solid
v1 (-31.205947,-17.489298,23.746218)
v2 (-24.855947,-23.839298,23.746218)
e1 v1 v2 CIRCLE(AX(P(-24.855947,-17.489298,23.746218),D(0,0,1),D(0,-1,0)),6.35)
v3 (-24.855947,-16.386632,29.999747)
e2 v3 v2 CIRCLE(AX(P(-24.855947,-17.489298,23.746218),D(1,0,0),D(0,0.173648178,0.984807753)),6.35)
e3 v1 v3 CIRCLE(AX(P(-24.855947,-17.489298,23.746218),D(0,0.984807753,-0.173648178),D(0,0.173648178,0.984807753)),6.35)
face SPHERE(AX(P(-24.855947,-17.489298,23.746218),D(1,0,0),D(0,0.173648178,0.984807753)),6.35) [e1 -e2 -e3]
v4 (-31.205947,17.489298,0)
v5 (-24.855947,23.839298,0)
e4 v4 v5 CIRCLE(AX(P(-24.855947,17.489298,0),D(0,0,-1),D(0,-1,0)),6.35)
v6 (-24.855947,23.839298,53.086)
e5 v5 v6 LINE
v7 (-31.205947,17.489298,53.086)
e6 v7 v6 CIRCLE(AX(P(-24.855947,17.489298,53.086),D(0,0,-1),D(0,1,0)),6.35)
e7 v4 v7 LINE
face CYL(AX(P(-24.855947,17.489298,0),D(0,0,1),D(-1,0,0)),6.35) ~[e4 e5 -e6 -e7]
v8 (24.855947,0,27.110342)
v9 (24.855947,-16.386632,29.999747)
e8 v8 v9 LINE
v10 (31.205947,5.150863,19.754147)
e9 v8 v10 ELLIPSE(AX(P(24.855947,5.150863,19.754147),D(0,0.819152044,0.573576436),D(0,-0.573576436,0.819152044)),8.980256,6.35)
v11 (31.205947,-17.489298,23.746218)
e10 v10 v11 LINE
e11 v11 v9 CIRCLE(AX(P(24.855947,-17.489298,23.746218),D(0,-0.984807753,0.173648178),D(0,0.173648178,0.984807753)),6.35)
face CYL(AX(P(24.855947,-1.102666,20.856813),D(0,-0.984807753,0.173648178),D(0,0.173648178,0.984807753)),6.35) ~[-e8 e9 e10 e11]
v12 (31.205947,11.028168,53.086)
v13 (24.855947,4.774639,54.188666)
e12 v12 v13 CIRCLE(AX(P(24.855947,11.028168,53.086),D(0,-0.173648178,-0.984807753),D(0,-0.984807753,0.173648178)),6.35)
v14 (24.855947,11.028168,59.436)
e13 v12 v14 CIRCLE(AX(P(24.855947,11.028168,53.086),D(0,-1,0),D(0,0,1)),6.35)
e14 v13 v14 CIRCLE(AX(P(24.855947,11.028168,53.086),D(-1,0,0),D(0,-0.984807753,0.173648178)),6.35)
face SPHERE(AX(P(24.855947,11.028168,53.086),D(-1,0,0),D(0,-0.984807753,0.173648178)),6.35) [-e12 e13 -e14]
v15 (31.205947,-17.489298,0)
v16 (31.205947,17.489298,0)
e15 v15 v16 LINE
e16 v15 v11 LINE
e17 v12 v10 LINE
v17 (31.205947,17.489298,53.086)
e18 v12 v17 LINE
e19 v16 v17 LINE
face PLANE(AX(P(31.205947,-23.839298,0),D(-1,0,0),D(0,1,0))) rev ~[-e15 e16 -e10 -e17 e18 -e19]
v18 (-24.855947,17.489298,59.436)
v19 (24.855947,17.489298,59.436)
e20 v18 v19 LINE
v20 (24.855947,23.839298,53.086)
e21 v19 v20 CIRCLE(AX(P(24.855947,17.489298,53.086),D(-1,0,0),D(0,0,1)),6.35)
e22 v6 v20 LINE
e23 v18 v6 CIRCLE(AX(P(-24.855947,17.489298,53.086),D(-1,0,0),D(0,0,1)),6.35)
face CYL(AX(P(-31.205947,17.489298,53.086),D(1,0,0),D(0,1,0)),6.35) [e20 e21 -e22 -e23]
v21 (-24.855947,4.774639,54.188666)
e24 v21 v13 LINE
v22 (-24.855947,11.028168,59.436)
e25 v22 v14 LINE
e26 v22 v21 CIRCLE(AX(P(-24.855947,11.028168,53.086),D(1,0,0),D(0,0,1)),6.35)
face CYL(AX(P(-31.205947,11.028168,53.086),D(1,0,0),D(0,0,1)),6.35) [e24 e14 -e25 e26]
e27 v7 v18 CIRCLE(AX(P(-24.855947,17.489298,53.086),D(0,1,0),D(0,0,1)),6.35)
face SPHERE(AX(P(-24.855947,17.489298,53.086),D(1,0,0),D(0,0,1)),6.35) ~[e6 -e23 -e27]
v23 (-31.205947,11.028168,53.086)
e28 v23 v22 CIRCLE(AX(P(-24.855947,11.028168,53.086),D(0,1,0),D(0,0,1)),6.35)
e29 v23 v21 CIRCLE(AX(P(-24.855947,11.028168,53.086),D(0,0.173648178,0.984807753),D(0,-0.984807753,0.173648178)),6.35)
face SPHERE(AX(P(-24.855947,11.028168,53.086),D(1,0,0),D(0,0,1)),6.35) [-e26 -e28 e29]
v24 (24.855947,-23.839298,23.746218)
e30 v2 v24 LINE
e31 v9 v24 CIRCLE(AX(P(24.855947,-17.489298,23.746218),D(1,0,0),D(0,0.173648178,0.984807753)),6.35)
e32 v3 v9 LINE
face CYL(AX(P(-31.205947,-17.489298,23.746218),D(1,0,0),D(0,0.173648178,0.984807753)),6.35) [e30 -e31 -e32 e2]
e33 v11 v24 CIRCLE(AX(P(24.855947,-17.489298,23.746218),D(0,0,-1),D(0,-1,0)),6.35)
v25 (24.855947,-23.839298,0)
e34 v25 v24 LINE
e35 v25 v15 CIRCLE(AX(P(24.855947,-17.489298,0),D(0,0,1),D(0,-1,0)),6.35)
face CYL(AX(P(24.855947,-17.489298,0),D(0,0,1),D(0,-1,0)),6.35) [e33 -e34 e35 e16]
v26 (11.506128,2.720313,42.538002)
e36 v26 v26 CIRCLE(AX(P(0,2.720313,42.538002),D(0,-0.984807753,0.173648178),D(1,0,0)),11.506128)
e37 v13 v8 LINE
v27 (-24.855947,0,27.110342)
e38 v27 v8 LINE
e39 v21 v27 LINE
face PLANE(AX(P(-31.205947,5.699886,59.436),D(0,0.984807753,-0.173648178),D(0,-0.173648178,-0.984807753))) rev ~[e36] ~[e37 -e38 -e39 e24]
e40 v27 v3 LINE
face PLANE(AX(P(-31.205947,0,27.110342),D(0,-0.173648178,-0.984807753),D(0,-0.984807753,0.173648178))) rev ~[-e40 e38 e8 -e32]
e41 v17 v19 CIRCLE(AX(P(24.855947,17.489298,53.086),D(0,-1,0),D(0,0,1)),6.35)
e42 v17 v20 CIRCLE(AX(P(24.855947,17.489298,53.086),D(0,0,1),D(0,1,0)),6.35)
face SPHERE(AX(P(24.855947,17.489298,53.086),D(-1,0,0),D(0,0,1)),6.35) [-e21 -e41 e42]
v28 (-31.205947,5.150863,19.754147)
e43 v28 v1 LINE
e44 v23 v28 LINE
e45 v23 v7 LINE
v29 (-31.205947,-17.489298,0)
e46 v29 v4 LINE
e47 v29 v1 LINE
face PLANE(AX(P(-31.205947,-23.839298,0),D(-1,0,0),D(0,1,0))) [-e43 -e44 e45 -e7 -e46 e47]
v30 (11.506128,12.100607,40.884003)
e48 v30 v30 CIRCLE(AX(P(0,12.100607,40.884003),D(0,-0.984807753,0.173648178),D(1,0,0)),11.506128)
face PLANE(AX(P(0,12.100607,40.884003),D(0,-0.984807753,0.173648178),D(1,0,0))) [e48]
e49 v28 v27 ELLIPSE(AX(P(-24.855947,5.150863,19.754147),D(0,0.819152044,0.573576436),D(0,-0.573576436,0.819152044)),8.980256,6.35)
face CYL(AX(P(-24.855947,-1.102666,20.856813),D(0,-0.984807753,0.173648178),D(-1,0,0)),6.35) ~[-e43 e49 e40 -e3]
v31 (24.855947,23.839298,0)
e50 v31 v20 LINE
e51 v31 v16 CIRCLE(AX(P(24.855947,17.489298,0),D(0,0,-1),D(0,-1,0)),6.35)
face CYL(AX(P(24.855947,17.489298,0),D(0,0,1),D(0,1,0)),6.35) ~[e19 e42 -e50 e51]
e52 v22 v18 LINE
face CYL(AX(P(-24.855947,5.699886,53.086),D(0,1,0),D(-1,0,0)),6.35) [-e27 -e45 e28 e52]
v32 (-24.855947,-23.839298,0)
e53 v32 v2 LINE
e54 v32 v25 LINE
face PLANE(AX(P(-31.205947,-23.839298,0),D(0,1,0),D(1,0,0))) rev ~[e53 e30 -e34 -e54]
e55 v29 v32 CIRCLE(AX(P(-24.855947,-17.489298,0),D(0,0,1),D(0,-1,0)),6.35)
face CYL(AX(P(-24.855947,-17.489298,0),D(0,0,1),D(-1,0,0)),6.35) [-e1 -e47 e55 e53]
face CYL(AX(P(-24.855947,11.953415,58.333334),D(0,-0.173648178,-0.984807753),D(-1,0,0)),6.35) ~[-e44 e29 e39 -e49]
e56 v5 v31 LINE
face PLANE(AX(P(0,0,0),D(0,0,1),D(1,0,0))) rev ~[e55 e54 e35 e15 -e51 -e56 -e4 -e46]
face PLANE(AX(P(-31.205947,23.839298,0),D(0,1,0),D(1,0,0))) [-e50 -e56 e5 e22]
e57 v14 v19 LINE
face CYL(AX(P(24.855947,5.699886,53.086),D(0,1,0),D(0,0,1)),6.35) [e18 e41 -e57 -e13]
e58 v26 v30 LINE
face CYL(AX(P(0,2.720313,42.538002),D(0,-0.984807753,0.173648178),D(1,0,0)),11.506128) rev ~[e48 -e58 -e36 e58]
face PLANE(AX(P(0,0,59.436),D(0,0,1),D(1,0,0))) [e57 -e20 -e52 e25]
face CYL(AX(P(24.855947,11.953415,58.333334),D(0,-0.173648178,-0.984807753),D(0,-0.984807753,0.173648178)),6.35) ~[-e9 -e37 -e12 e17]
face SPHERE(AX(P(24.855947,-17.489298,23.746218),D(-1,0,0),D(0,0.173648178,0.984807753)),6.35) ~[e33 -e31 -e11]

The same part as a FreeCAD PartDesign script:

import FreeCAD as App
import Part
import Sketcher

V = App.Vector
Q = App.Units.Quantity


def edges_at(feature, points):
    """Names of the edges that pass closest to the given points."""
    edges = feature.Shape.Edges
    near = lambda p: min(range(len(edges)), key=lambda i: edges[i].distToShape(Part.Vertex(*p))[0])
    return sorted({f"Edge{near(p) + 1}" for p in points})

doc = App.newDocument("Part")
body = doc.addObject("PartDesign::Body", "Body")

# Sketch on XY plane
sketch1 = body.newObject("Sketcher::SketchObject", "Sketch")
sketch1.AttachmentSupport = (doc.getObject("XY_Plane"), [""])
sketch1.MapMode = "FlatFace"
sketch1.addGeometry([
    Part.LineSegment(V(-31, 24, 0), V(-31, -24, 0)),
    Part.LineSegment(V(-31, -24, 0), V(31, -24, 0)),
    Part.LineSegment(V(31, -24, 0), V(31, 24, 0)),
    Part.LineSegment(V(31, 24, 0), V(-31, 24, 0)),
], False)
sketch1.addConstraint([
    Sketcher.Constraint("Coincident", 0, 2, 1, 1),
    Sketcher.Constraint("Coincident", 1, 2, 2, 1),
    Sketcher.Constraint("Coincident", 2, 2, 3, 1),
    Sketcher.Constraint("Coincident", 3, 2, 0, 1),
    Sketcher.Constraint("Vertical", 0),
    Sketcher.Constraint("Horizontal", 1),
    Sketcher.Constraint("Vertical", 2),
    Sketcher.Constraint("Horizontal", 3),
    Sketcher.Constraint("Symmetric", 0, 2, 2, 2, -1, 1),
    Sketcher.Constraint("DistanceX", 1, 1, 1, 2, 62.411893),
    Sketcher.Constraint("DistanceY", 0, 2, 0, 1, 47.678595),
])
pad1 = body.newObject("PartDesign::Pad", "Pad")
pad1.Profile = sketch1
pad1.Length = Q("2.34 in")

# Sketch on YZ plane
sketch2 = body.newObject("Sketcher::SketchObject", "Sketch001")
sketch2.AttachmentSupport = (doc.getObject("YZ_Plane"), [""])
sketch2.MapMode = "FlatFace"
sketch2.AttachmentOffset = App.Placement(V(0, 0, -31.205947), App.Rotation())
sketch2.addGeometry([
    Part.LineSegment(V(-24, 59, 0), V(6, 59, 0)),
    Part.LineSegment(V(6, 59, 0), V(0, 27, 0)),
    Part.LineSegment(V(0, 27, 0), V(-24, 31, 0)),
    Part.LineSegment(V(-24, 31, 0), V(-24, 59, 0)),
], False)
sketch2.addConstraint([
    Sketcher.Constraint("Coincident", 0, 2, 1, 1),
    Sketcher.Constraint("Coincident", 1, 2, 2, 1),
    Sketcher.Constraint("Coincident", 2, 2, 3, 1),
    Sketcher.Constraint("Coincident", 3, 2, 0, 1),
    Sketcher.Constraint("Horizontal", 0),
    Sketcher.Constraint("Vertical", 3),
    Sketcher.Constraint("PointOnObject", 1, 2, -2),
    Sketcher.Constraint("Perpendicular", 1, 2),
    Sketcher.Constraint("Angle", 1, Q("-100 deg")),
    Sketcher.Constraint("DistanceY", -1, 1, 0, 2, Q("2.34 in")),
    Sketcher.Constraint("DistanceX", 0, 1, 0, 2, 29.539183),
    Sketcher.Constraint("DistanceY", 3, 1, 3, 2, 28.122147),
])
pocket1 = body.newObject("PartDesign::Pocket", "Pocket")
pocket1.Profile = sketch2
pocket1.Type = "ThroughAll"
pocket1.Reversed = True

# Sketch on an angled plane
sketch3 = body.newObject("Sketcher::SketchObject", "Sketch002")
sketch3.Placement = App.Placement(V(0, -4.636142, 0.817477), App.Rotation(V(1, 0, 0), V(0, 0.173648178, 0.984807753), V(0, -0.984807753, 0.173648178), "ZXY"))
sketch3.addGeometry(Part.Circle(V(0, 42, 0), V(0, 0, 1), 12), False)
sketch3.addConstraint([
    Sketcher.Constraint("PointOnObject", 0, 3, -2),
    Sketcher.Constraint("Diameter", 0, 23.012256),
    Sketcher.Constraint("DistanceY", -1, 1, 0, 3, 42.364132),
])
pocket2 = body.newObject("PartDesign::Pocket", "Pocket001")
pocket2.Profile = sketch3
pocket2.Length = Q("0.375 in")
doc.recompute()

fillet = body.newObject("PartDesign::Fillet", "Fillet")
fillet.Base = (pocket2, edges_at(pocket2, [
    (0, 23.839, 59.436),
    (31.206, 14.77, 59.436),
    (0, 5.7, 59.436),
    (-31.206, 14.77, 59.436),
    (-31.206, -23.839, 15.657),
    (31.206, -23.839, 15.657),
    (0, -23.839, 31.314),
    (-31.206, -11.92, 29.212),
    (-31.206, 2.85, 43.273),
    (31.206, -11.92, 29.212),
    (31.206, 2.85, 43.273),
    (31.206, 23.839, 29.718),
    (-31.206, 23.839, 29.718),
]))
fillet.Radius = Q("0.25 in")

doc.recompute()
